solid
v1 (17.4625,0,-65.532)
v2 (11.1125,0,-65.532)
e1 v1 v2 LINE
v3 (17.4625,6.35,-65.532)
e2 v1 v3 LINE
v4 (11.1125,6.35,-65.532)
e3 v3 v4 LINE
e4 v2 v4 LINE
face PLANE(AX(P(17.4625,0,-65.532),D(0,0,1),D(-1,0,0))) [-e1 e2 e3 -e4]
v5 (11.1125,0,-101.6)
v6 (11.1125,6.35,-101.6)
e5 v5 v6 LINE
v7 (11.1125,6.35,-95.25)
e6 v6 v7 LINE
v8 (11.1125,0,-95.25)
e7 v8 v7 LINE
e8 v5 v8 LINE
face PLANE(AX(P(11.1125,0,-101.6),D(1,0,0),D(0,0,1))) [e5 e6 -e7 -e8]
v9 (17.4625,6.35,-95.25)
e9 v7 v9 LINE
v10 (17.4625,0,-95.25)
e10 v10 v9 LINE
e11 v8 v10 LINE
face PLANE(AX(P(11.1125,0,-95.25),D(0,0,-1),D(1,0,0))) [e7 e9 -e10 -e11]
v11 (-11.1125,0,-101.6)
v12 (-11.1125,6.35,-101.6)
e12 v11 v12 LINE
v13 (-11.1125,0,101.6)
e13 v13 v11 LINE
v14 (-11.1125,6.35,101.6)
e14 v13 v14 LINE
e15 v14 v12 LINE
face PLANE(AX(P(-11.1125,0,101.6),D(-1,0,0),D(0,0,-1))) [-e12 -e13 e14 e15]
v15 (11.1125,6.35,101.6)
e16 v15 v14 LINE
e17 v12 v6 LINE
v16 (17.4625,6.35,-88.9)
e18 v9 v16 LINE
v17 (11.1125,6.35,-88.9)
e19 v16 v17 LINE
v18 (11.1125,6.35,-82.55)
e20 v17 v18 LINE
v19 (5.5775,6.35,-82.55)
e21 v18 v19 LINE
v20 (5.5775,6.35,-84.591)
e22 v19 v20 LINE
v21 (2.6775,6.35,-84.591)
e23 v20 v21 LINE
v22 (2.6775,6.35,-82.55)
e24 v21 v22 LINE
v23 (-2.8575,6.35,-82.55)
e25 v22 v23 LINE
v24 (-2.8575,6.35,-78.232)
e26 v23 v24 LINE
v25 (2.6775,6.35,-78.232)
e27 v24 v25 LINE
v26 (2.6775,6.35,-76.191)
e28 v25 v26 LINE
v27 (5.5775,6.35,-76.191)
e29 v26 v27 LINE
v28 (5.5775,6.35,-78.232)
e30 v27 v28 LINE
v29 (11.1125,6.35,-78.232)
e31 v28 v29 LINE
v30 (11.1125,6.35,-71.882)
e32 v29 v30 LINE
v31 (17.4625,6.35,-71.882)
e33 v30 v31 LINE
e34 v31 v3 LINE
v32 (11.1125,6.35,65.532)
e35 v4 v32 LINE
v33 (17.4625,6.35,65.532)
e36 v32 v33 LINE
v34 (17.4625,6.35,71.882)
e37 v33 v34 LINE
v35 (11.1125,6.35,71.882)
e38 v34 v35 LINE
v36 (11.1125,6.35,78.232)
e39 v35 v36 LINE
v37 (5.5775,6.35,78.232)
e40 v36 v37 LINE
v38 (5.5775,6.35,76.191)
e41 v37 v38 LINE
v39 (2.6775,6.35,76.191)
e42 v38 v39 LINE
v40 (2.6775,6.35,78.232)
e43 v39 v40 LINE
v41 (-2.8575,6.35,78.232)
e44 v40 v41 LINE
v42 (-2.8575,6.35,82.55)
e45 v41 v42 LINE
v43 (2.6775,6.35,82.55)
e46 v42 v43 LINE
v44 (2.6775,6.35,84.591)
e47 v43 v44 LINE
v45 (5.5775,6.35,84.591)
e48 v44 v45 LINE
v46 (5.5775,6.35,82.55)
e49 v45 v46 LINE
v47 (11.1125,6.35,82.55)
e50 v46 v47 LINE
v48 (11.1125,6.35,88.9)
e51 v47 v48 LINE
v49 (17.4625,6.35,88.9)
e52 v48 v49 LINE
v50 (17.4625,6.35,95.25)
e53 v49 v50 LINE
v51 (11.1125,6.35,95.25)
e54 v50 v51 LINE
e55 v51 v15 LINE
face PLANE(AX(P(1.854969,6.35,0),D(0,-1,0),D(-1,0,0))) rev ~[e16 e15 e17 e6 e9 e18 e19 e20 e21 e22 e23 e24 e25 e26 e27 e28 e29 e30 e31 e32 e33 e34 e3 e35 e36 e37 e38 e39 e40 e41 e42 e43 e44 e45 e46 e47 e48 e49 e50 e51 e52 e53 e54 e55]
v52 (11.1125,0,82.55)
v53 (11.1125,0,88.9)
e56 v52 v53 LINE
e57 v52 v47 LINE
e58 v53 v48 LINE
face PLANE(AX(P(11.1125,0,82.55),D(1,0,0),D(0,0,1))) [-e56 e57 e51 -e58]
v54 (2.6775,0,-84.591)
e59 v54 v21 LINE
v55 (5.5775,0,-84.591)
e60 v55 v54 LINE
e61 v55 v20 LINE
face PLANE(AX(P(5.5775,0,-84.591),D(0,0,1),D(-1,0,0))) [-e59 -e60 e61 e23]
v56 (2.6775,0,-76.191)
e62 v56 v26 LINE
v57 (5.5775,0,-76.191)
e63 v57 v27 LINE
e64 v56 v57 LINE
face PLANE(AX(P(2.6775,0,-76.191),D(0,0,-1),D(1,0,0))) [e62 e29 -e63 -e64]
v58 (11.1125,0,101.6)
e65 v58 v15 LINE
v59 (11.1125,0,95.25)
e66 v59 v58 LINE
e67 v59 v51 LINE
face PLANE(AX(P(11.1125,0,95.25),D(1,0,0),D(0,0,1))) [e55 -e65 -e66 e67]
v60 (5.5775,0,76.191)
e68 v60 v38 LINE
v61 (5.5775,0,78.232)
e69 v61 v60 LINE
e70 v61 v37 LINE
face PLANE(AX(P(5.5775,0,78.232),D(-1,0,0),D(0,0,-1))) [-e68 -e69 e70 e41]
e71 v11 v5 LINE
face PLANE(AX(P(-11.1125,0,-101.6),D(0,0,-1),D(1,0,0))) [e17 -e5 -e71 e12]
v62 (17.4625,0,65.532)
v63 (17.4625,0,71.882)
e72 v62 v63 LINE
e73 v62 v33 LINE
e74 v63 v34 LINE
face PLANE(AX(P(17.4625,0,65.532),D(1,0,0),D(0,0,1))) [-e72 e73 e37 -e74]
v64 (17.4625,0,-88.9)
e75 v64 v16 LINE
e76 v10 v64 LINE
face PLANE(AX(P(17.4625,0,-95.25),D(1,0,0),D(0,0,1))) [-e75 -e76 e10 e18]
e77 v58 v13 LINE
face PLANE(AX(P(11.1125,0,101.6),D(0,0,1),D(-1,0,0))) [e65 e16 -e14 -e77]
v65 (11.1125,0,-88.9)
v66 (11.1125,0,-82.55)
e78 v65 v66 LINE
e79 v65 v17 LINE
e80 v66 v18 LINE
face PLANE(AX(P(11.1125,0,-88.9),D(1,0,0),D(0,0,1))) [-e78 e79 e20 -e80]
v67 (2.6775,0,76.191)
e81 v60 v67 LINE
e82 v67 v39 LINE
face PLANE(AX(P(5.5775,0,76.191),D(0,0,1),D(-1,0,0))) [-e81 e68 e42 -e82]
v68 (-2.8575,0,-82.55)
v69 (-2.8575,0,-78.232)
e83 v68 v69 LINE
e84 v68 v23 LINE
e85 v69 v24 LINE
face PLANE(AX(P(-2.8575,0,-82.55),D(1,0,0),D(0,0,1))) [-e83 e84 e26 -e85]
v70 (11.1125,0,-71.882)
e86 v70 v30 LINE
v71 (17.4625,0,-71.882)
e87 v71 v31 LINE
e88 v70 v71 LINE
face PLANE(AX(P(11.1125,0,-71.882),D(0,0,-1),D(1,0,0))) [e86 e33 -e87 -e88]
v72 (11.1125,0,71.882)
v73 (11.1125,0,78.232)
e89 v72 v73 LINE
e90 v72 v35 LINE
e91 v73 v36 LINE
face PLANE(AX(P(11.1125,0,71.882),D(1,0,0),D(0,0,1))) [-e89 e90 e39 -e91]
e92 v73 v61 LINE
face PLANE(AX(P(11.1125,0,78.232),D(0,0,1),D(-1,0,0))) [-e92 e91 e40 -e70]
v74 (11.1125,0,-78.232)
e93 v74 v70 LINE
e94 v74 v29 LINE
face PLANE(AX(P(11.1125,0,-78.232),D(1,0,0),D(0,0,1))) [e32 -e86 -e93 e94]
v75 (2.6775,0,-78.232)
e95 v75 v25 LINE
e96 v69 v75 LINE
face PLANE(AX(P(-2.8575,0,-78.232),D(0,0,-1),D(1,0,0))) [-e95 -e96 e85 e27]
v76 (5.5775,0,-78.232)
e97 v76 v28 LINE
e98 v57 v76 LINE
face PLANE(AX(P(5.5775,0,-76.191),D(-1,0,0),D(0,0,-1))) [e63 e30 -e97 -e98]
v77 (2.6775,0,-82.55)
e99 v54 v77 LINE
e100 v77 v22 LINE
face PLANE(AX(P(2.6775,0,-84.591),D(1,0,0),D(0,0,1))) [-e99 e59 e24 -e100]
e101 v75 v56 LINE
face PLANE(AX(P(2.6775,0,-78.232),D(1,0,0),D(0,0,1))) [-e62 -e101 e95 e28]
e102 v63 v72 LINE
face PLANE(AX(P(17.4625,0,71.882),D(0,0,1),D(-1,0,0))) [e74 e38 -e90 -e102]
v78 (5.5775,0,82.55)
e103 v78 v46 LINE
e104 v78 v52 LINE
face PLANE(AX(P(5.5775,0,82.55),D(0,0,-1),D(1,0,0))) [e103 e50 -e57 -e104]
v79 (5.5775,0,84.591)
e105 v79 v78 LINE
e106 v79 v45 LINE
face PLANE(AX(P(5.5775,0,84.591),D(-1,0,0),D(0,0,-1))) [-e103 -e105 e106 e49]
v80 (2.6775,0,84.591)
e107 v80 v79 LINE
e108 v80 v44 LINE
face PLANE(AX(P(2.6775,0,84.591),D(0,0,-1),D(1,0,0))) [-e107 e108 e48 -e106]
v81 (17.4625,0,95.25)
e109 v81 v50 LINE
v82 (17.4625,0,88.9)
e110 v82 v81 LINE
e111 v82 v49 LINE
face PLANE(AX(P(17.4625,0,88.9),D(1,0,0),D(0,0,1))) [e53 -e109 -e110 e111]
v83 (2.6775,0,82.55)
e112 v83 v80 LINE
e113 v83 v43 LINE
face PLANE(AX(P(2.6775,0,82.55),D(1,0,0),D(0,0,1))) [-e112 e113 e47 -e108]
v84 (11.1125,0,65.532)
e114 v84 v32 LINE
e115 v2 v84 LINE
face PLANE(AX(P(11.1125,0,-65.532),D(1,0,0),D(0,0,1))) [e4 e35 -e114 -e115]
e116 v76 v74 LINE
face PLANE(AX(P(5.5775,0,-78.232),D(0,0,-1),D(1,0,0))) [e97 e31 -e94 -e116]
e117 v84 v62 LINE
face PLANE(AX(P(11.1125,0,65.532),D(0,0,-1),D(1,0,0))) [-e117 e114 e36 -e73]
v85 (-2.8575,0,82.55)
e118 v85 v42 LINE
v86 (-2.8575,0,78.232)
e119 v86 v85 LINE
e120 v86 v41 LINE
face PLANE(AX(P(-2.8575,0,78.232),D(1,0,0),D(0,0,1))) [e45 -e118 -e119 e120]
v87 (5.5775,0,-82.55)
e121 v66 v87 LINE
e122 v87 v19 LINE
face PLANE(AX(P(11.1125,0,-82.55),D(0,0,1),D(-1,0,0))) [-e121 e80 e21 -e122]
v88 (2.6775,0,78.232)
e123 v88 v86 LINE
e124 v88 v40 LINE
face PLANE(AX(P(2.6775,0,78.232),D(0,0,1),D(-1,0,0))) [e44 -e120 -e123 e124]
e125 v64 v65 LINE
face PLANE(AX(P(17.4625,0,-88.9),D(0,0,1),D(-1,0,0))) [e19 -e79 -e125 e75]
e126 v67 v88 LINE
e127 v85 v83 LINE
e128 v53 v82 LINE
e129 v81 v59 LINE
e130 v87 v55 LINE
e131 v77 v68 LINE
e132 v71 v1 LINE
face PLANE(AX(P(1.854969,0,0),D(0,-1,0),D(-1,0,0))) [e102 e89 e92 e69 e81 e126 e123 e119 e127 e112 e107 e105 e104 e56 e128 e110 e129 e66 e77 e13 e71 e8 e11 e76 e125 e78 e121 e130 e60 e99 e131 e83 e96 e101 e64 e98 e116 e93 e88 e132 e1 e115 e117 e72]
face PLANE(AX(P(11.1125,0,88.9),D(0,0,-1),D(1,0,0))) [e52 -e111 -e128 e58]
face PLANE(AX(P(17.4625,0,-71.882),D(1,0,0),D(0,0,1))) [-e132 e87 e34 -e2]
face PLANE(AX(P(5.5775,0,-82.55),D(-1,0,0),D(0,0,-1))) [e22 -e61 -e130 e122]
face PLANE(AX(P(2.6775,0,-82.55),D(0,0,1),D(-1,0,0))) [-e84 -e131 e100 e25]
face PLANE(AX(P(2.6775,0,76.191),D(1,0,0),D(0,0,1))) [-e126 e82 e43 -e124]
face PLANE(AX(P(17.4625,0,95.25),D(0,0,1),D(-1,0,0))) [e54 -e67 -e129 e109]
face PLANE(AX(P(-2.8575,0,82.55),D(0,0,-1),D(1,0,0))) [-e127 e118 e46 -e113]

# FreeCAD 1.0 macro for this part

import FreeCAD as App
import Part
import Sketcher

V = App.Vector
Q = App.Units.Quantity

doc = App.newDocument("Part")
body = doc.addObject("PartDesign::Body", "Body")

# Sketch on XZ plane
sketch1 = body.newObject("Sketcher::SketchObject", "Sketch")
sketch1.AttachmentSupport = (doc.getObject("XZ_Plane"), [""])
sketch1.MapMode = "FlatFace"
sketch1.addGeometry([
    Part.LineSegment(V(17.5, 88.9, 0), V(11.1, 88.9, 0)),  # 0
    Part.LineSegment(V(11.1, 88.9, 0), V(11.1, 82.5, 0)),  # 1
    Part.LineSegment(V(11.1, 82.5, 0), V(5.6, 82.5, 0)),  # 2
    Part.LineSegment(V(5.6, 82.5, 0), V(5.6, 84.6, 0)),  # 3
    Part.LineSegment(V(5.6, 84.6, 0), V(2.7, 84.6, 0)),  # 4
    Part.LineSegment(V(2.7, 84.6, 0), V(2.7, 82.5, 0)),  # 5
    Part.LineSegment(V(2.7, 82.5, 0), V(-2.9, 82.5, 0)),  # 6
    Part.LineSegment(V(-2.9, 82.5, 0), V(-2.9, 78.2, 0)),  # 7
    Part.LineSegment(V(-2.9, 78.2, 0), V(2.7, 78.2, 0)),  # 8
    Part.LineSegment(V(2.7, 78.2, 0), V(2.7, 76.2, 0)),  # 9
    Part.LineSegment(V(2.7, 76.2, 0), V(5.6, 76.2, 0)),  # 10
    Part.LineSegment(V(5.6, 76.2, 0), V(5.6, 78.2, 0)),  # 11
    Part.LineSegment(V(5.6, 78.2, 0), V(11.1, 78.2, 0)),  # 12
    Part.LineSegment(V(11.1, 78.2, 0), V(11.1, 71.9, 0)),  # 13
    Part.LineSegment(V(11.1, 71.9, 0), V(17.5, 71.9, 0)),  # 14
    Part.LineSegment(V(17.5, 71.9, 0), V(17.5, 65.5, 0)),  # 15
    Part.LineSegment(V(17.5, 65.5, 0), V(11.1, 65.5, 0)),  # 16
    Part.LineSegment(V(11.1, 65.5, 0), V(11.1, -65.5, 0)),  # 17
    Part.LineSegment(V(11.1, -65.5, 0), V(17.5, -65.5, 0)),  # 18
    Part.LineSegment(V(17.5, -65.5, 0), V(17.5, -71.9, 0)),  # 19
    Part.LineSegment(V(17.5, -71.9, 0), V(11.1, -71.9, 0)),  # 20
    Part.LineSegment(V(11.1, -71.9, 0), V(11.1, -78.2, 0)),  # 21
    Part.LineSegment(V(11.1, -78.2, 0), V(5.6, -78.2, 0)),  # 22
    Part.LineSegment(V(5.6, -78.2, 0), V(5.6, -76.2, 0)),  # 23
    Part.LineSegment(V(5.6, -76.2, 0), V(2.7, -76.2, 0)),  # 24
    Part.LineSegment(V(2.7, -76.2, 0), V(2.7, -78.2, 0)),  # 25
    Part.LineSegment(V(2.7, -78.2, 0), V(-2.9, -78.2, 0)),  # 26
    Part.LineSegment(V(-2.9, -78.2, 0), V(-2.9, -82.5, 0)),  # 27
    Part.LineSegment(V(-2.9, -82.5, 0), V(2.7, -82.5, 0)),  # 28
    Part.LineSegment(V(2.7, -82.5, 0), V(2.7, -84.6, 0)),  # 29
    Part.LineSegment(V(2.7, -84.6, 0), V(5.6, -84.6, 0)),  # 30
    Part.LineSegment(V(5.6, -84.6, 0), V(5.6, -82.5, 0)),  # 31
    Part.LineSegment(V(5.6, -82.5, 0), V(11.1, -82.5, 0)),  # 32
    Part.LineSegment(V(11.1, -82.5, 0), V(11.1, -88.9, 0)),  # 33
    Part.LineSegment(V(11.1, -88.9, 0), V(17.5, -88.9, 0)),  # 34
    Part.LineSegment(V(17.5, -88.9, 0), V(17.5, -95.2, 0)),  # 35
    Part.LineSegment(V(17.5, -95.2, 0), V(11.1, -95.2, 0)),  # 36
    Part.LineSegment(V(11.1, -95.2, 0), V(11.1, -101.6, 0)),  # 37
    Part.LineSegment(V(11.1, -101.6, 0), V(-11.1, -101.6, 0)),  # 38
    Part.LineSegment(V(-11.1, -101.6, 0), V(-11.1, 101.6, 0)),  # 39
    Part.LineSegment(V(-11.1, 101.6, 0), V(11.1, 101.6, 0)),  # 40
    Part.LineSegment(V(11.1, 101.6, 0), V(11.1, 95.2, 0)),  # 41
    Part.LineSegment(V(11.1, 95.2, 0), V(17.5, 95.2, 0)),  # 42
    Part.LineSegment(V(17.5, 95.2, 0), V(17.5, 88.9, 0)),  # 43
], False)
sketch1.addConstraint([
    Sketcher.Constraint("Coincident", 0, 2, 1, 1),
    Sketcher.Constraint("Coincident", 1, 2, 2, 1),
    Sketcher.Constraint("Coincident", 2, 2, 3, 1),
    Sketcher.Constraint("Coincident", 3, 2, 4, 1),
    Sketcher.Constraint("Coincident", 4, 2, 5, 1),
    Sketcher.Constraint("Coincident", 5, 2, 6, 1),
    Sketcher.Constraint("Coincident", 6, 2, 7, 1),
    Sketcher.Constraint("Coincident", 7, 2, 8, 1),
    Sketcher.Constraint("Coincident", 8, 2, 9, 1),
    Sketcher.Constraint("Coincident", 9, 2, 10, 1),
    Sketcher.Constraint("Coincident", 10, 2, 11, 1),
    Sketcher.Constraint("Coincident", 11, 2, 12, 1),
    Sketcher.Constraint("Coincident", 12, 2, 13, 1),
    Sketcher.Constraint("Coincident", 13, 2, 14, 1),
    Sketcher.Constraint("Coincident", 14, 2, 15, 1),
    Sketcher.Constraint("Coincident", 15, 2, 16, 1),
    Sketcher.Constraint("Coincident", 16, 2, 17, 1),
    Sketcher.Constraint("Coincident", 17, 2, 18, 1),
    Sketcher.Constraint("Coincident", 18, 2, 19, 1),
    Sketcher.Constraint("Coincident", 19, 2, 20, 1),
    Sketcher.Constraint("Coincident", 20, 2, 21, 1),
    Sketcher.Constraint("Coincident", 21, 2, 22, 1),
    Sketcher.Constraint("Coincident", 22, 2, 23, 1),
    Sketcher.Constraint("Coincident", 23, 2, 24, 1),
    Sketcher.Constraint("Coincident", 24, 2, 25, 1),
    Sketcher.Constraint("Coincident", 25, 2, 26, 1),
    Sketcher.Constraint("Coincident", 26, 2, 27, 1),
    Sketcher.Constraint("Coincident", 27, 2, 28, 1),
    Sketcher.Constraint("Coincident", 28, 2, 29, 1),
    Sketcher.Constraint("Coincident", 29, 2, 30, 1),
    Sketcher.Constraint("Coincident", 30, 2, 31, 1),
    Sketcher.Constraint("Coincident", 31, 2, 32, 1),
    Sketcher.Constraint("Coincident", 32, 2, 33, 1),
    Sketcher.Constraint("Coincident", 33, 2, 34, 1),
    Sketcher.Constraint("Coincident", 34, 2, 35, 1),
    Sketcher.Constraint("Coincident", 35, 2, 36, 1),
    Sketcher.Constraint("Coincident", 36, 2, 37, 1),
    Sketcher.Constraint("Coincident", 37, 2, 38, 1),
    Sketcher.Constraint("Coincident", 38, 2, 39, 1),
    Sketcher.Constraint("Coincident", 39, 2, 40, 1),
    Sketcher.Constraint("Coincident", 40, 2, 41, 1),
    Sketcher.Constraint("Coincident", 41, 2, 42, 1),
    Sketcher.Constraint("Coincident", 42, 2, 43, 1),
    Sketcher.Constraint("Coincident", 43, 2, 0, 1),
    Sketcher.Constraint("Horizontal", 0),
    Sketcher.Constraint("Vertical", 1),
    Sketcher.Constraint("Horizontal", 2),
    Sketcher.Constraint("Vertical", 3),
    Sketcher.Constraint("Horizontal", 4),
    Sketcher.Constraint("Vertical", 5),
    Sketcher.Constraint("Horizontal", 6),
    Sketcher.Constraint("Vertical", 7),
    Sketcher.Constraint("Horizontal", 8),
    Sketcher.Constraint("Vertical", 9),
    Sketcher.Constraint("Horizontal", 10),
    Sketcher.Constraint("Vertical", 11),
    Sketcher.Constraint("Horizontal", 12),
    Sketcher.Constraint("Vertical", 13),
    Sketcher.Constraint("Horizontal", 14),
    Sketcher.Constraint("Vertical", 15),
    Sketcher.Constraint("Horizontal", 16),
    Sketcher.Constraint("Vertical", 17),
    Sketcher.Constraint("Horizontal", 18),
    Sketcher.Constraint("Vertical", 19),
    Sketcher.Constraint("Horizontal", 20),
    Sketcher.Constraint("Vertical", 21),
    Sketcher.Constraint("Horizontal", 22),
    Sketcher.Constraint("Vertical", 23),
    Sketcher.Constraint("Horizontal", 24),
    Sketcher.Constraint("Vertical", 25),
    Sketcher.Constraint("Horizontal", 26),
    Sketcher.Constraint("Vertical", 27),
    Sketcher.Constraint("Horizontal", 28),
    Sketcher.Constraint("Vertical", 29),
    Sketcher.Constraint("Horizontal", 30),
    Sketcher.Constraint("Vertical", 31),
    Sketcher.Constraint("Horizontal", 32),
    Sketcher.Constraint("Vertical", 33),
    Sketcher.Constraint("Horizontal", 34),
    Sketcher.Constraint("Vertical", 35),
    Sketcher.Constraint("Horizontal", 36),
    Sketcher.Constraint("Vertical", 37),
    Sketcher.Constraint("Horizontal", 38),
    Sketcher.Constraint("Vertical", 39),
    Sketcher.Constraint("Horizontal", 40),
    Sketcher.Constraint("Vertical", 41),
    Sketcher.Constraint("Horizontal", 42),
    Sketcher.Constraint("Vertical", 43),
    Sketcher.Constraint("Symmetric", 37, 2, 39, 2, -1, 1),
    Sketcher.Constraint("Symmetric", 15, 2, 18, 2, -1),
    Sketcher.Constraint("Symmetric", 13, 2, 20, 2, -1),
    Sketcher.Constraint("Symmetric", 11, 2, 22, 2, -1),
    Sketcher.Constraint("Symmetric", 9, 2, 24, 2, -1),
    Sketcher.Constraint("Symmetric", 7, 2, 26, 2, -1),
    Sketcher.Constraint("Symmetric", 5, 2, 28, 2, -1),
    Sketcher.Constraint("Symmetric", 3, 2, 30, 2, -1),
    Sketcher.Constraint("Symmetric", 1, 2, 32, 2, -1),
    Sketcher.Constraint("Symmetric", 36, 2, 41, 2, -1),
    Sketcher.Constraint("Symmetric", 34, 2, 43, 2, -1),
    Sketcher.Constraint("Horizontal", 2, 2, 5, 2),
    Sketcher.Constraint("Horizontal", 8, 2, 11, 2),
    Sketcher.Constraint("Vertical", 5, 2, 8, 2),
    Sketcher.Constraint("Vertical", 3, 2, 10, 2),
    Sketcher.Constraint("Vertical", 1, 2, 12, 2),
    Sketcher.Constraint("Vertical", 13, 2, 16, 2),
    Sketcher.Constraint("Vertical", 19, 2, 34, 2),
    Sketcher.Constraint("Vertical", 33, 2, 36, 2),
    Sketcher.Constraint("Equal", 2, 6),
    Sketcher.Constraint("Equal", 42, 1),
    Sketcher.Constraint("Equal", 5, 9),
    Sketcher.Constraint("Equal", 1, 13),
    Sketcher.Constraint("Equal", 13, 15),
    Sketcher.Constraint("Equal", 33, 35),
    Sketcher.Constraint("Equal", 35, 37),
    Sketcher.Constraint("DistanceY", 39, 1, 39, 2, Q("8 in")),
    Sketcher.Constraint("DistanceX", 0, 2, 0, 1, Q("0.25 in")),
    Sketcher.Constraint("DistanceY", 7, 2, 7, 1, Q("0.17 in")),
    Sketcher.Constraint("DistanceX", 38, 2, 38, 1, Q("0.875 in")),
    Sketcher.Constraint("DistanceX", 6, 2, 1, 2, Q("0.55 in")),
    Sketcher.Constraint("DistanceX", 2, 2, 2, 1, 5.535),
    Sketcher.Constraint("DistanceY", 3, 1, 3, 2, 2.041),
])
pad1 = body.newObject("PartDesign::Pad", "Pad")
pad1.Profile = sketch1
pad1.Length = Q("0.25 in")
pad1.Reversed = True

doc.recompute()
